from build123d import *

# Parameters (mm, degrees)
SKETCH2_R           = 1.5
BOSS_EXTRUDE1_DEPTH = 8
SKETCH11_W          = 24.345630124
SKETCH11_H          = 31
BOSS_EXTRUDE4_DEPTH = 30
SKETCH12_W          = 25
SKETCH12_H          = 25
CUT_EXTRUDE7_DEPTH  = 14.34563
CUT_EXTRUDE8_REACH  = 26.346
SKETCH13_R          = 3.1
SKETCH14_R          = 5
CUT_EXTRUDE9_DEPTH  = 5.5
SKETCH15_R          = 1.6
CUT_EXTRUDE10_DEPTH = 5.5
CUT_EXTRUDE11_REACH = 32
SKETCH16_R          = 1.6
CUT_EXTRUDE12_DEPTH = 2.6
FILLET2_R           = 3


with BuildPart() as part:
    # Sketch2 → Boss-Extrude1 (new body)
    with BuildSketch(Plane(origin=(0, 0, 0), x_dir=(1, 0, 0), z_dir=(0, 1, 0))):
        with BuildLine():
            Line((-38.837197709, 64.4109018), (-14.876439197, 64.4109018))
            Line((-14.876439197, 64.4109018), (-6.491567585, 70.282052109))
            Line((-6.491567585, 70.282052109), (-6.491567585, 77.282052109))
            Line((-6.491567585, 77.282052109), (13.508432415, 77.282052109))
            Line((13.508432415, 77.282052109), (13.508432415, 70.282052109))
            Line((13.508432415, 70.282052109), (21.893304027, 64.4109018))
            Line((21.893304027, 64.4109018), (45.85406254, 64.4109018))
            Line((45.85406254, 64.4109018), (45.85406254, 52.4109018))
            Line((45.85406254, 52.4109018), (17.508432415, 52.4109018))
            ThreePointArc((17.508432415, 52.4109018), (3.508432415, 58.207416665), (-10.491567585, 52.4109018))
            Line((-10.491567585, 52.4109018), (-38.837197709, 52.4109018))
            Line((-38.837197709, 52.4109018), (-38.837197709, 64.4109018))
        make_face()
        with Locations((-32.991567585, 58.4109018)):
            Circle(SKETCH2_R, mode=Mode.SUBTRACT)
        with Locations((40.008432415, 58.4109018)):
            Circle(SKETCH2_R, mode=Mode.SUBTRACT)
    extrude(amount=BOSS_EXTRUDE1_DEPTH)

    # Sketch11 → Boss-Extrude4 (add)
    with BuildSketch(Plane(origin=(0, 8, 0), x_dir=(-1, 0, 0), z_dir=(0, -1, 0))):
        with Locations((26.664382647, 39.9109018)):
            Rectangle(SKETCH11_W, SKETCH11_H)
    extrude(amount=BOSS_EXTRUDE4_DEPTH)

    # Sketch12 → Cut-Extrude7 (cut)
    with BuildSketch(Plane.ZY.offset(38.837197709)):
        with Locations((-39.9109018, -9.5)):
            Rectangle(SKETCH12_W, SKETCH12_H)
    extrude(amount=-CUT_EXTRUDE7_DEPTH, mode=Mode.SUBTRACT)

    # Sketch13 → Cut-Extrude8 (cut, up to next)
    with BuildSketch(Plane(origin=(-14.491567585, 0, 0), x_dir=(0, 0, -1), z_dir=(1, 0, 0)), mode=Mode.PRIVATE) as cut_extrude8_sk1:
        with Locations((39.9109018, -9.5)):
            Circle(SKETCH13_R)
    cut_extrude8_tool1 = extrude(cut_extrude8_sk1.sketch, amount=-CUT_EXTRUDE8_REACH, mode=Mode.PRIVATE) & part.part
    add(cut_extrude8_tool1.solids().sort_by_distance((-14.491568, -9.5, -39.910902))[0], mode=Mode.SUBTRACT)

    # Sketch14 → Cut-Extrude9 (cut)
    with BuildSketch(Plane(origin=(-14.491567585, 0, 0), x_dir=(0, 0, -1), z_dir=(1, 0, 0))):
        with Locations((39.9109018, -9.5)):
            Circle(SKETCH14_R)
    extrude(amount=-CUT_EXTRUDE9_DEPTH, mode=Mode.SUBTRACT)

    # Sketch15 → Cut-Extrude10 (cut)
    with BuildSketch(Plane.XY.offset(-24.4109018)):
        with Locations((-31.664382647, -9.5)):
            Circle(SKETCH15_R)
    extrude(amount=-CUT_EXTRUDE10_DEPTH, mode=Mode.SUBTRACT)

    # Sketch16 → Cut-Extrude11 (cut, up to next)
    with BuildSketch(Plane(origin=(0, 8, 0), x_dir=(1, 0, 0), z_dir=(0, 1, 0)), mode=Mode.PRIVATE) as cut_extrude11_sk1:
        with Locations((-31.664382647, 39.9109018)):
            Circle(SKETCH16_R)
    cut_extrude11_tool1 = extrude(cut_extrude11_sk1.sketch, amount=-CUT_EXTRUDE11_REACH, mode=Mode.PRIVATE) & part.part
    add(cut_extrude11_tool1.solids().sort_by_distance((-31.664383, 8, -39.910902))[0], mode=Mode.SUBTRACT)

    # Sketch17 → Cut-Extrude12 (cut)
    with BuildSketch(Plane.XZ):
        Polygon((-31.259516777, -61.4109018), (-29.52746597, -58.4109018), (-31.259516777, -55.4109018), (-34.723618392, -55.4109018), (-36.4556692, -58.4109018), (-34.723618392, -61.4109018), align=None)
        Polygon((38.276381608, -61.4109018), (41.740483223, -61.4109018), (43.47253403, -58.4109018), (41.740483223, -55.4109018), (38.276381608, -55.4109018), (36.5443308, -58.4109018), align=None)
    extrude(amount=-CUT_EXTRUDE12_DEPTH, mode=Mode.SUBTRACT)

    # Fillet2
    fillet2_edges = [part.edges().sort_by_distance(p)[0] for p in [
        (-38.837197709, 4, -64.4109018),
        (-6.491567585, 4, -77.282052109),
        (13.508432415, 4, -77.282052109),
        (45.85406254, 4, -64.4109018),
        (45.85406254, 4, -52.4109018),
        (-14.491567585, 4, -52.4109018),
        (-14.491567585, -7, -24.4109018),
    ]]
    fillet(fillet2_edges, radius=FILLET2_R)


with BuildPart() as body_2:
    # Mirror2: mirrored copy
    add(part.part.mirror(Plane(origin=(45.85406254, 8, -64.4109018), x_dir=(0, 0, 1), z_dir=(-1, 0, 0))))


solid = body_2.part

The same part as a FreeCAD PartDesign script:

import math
import FreeCAD as App
import Part
import Sketcher

V = App.Vector
Q = App.Units.Quantity


def edges_at(feature, points):
    """Names of the edges that pass closest to the given points."""
    edges = feature.Shape.Edges
    near = lambda p: min(range(len(edges)), key=lambda i: edges[i].distToShape(Part.Vertex(*p))[0])
    return sorted({f"Edge{near(p) + 1}" for p in points})

doc = App.newDocument("Part")
body = doc.addObject("PartDesign::Body", "Body")

# Sketch on XZ plane
sketch1 = body.newObject("Sketcher::SketchObject", "Sketch")
sketch1.AttachmentSupport = (doc.getObject("XZ_Plane"), [""])
sketch1.MapMode = "FlatFace"
sketch1.addGeometry(Part.LineSegment(V(-14.9, -64.4, 0), V(-38.8, -64.4, 0)), False)
sketch1.addGeometry(Part.LineSegment(V(-38.8, -64.4, 0), V(-38.8, -52.4, 0)), False)
sketch1.addGeometry(Part.LineSegment(V(-38.8, -52.4, 0), V(-10.5, -52.4, 0)), False)
sketch1.addGeometry(Part.ArcOfCircle(Part.Circle(V(3.5, -38.4, 0), V(0, 0, 1), 19.8), math.radians(-135), math.radians(-45)), False)
sketch1.addGeometry(Part.LineSegment(V(17.5, -52.4, 0), V(45.9, -52.4, 0)), False)
sketch1.addGeometry(Part.LineSegment(V(45.9, -52.4, 0), V(45.9, -64.4, 0)), False)
sketch1.addGeometry(Part.LineSegment(V(45.9, -64.4, 0), V(21.9, -64.4, 0)), False)
sketch1.addGeometry(Part.LineSegment(V(21.9, -64.4, 0), V(13.5, -70.3, 0)), False)
sketch1.addGeometry(Part.LineSegment(V(13.5, -70.3, 0), V(13.5, -77.3, 0)), False)
sketch1.addGeometry(Part.LineSegment(V(13.5, -77.3, 0), V(-6.5, -77.3, 0)), False)
sketch1.addGeometry(Part.LineSegment(V(-6.5, -77.3, 0), V(-6.5, -70.3, 0)), False)
sketch1.addGeometry(Part.LineSegment(V(-6.5, -70.3, 0), V(-14.9, -64.4, 0)), False)
sketch1.addGeometry(Part.Circle(V(40, -58.4, 0), V(0, 0, 1), 1.5), False)
sketch1.addGeometry(Part.Circle(V(-33, -58.4, 0), V(0, 0, 1), 1.5), False)
sketch1.addConstraint(Sketcher.Constraint("Coincident", 0, 2, 1, 1))
sketch1.addConstraint(Sketcher.Constraint("Coincident", 1, 2, 2, 1))
sketch1.addConstraint(Sketcher.Constraint("Coincident", 2, 2, 3, 1))
sketch1.addConstraint(Sketcher.Constraint("Coincident", 3, 2, 4, 1))
sketch1.addConstraint(Sketcher.Constraint("Coincident", 4, 2, 5, 1))
sketch1.addConstraint(Sketcher.Constraint("Coincident", 5, 2, 6, 1))
sketch1.addConstraint(Sketcher.Constraint("Coincident", 6, 2, 7, 1))
sketch1.addConstraint(Sketcher.Constraint("Coincident", 7, 2, 8, 1))
sketch1.addConstraint(Sketcher.Constraint("Coincident", 8, 2, 9, 1))
sketch1.addConstraint(Sketcher.Constraint("Coincident", 9, 2, 10, 1))
sketch1.addConstraint(Sketcher.Constraint("Coincident", 10, 2, 11, 1))
sketch1.addConstraint(Sketcher.Constraint("Coincident", 11, 2, 0, 1))
sketch1.addConstraint(Sketcher.Constraint("Horizontal", 0))
sketch1.addConstraint(Sketcher.Constraint("Vertical", 1))
sketch1.addConstraint(Sketcher.Constraint("Horizontal", 2))
sketch1.addConstraint(Sketcher.Constraint("Horizontal", 4))
sketch1.addConstraint(Sketcher.Constraint("Vertical", 5))
sketch1.addConstraint(Sketcher.Constraint("Horizontal", 6))
sketch1.addConstraint(Sketcher.Constraint("Vertical", 8))
sketch1.addConstraint(Sketcher.Constraint("Horizontal", 9))
sketch1.addConstraint(Sketcher.Constraint("Vertical", 10))
sketch1.addConstraint(Sketcher.Constraint("Equal", 12, 13))
sketch1.addConstraint(Sketcher.Constraint("Horizontal", 12, 3, 13, 3))
sketch1.addConstraint(Sketcher.Constraint("Horizontal", 2, 2, 3, 2))
sketch1.addConstraint(Sketcher.Constraint("Horizontal", 0, 2, 5, 2))
sketch1.addConstraint(Sketcher.Constraint("Horizontal", 7, 2, 10, 2))
sketch1.addConstraint(Sketcher.Constraint("Equal", 2, 4))
sketch1.addConstraint(Sketcher.Constraint("Equal", 0, 6))
sketch1.addConstraint(Sketcher.Constraint("Equal", 7, 11))
sketch1.addConstraint(Sketcher.Constraint("Diameter", 12, Q("3 mm")))
sketch1.addConstraint(Sketcher.Constraint("DistanceX", 9, 2, 9, 1, Q("20 mm")))
sketch1.addConstraint(Sketcher.Constraint("DistanceY", 1, 1, 1, 2, Q("12 mm")))
sketch1.addConstraint(Sketcher.Constraint("DistanceY", 8, 2, 8, 1, Q("7 mm")))
sketch1.addConstraint(Sketcher.Constraint("Angle", 7, Q("-145 deg")))
sketch1.addConstraint(Sketcher.Constraint("DistanceX", 13, 3, 12, 3, Q("73 mm")))
sketch1.addConstraint(Sketcher.Constraint("DistanceY", 0, 2, 13, 3, Q("6 mm")))
sketch1.addConstraint(Sketcher.Constraint("DistanceX", 2, 2, 3, 3, Q("14 mm")))
sketch1.addConstraint(Sketcher.Constraint("DistanceX", 3, 3, 12, 3, Q("36.5 mm")))
sketch1.addConstraint(Sketcher.Constraint("Radius", 3, Q("19.804968 mm")))
sketch1.addConstraint(Sketcher.Constraint("DistanceX", 0, 2, 0, 1, Q("23.960759 mm")))
sketch1.addConstraint(Sketcher.Constraint("DistanceX", 2, 1, 2, 2, Q("28.34563 mm")))
sketch1.addConstraint(Sketcher.Constraint("DistanceY", 12, 3, -1, 1, Q("58.410902 mm")))
sketch1.addConstraint(Sketcher.Constraint("DistanceX", 11, 2, -1, 1, Q("14.876439 mm")))
pad1 = body.newObject("PartDesign::Pad", "Pad")
pad1.Profile = sketch1
pad1.Length = 8
pad1.Reversed = True

# Sketch on XZ plane
sketch2 = body.newObject("Sketcher::SketchObject", "Sketch001")
sketch2.AttachmentSupport = (doc.getObject("XZ_Plane"), [""])
sketch2.MapMode = "FlatFace"
sketch2.AttachmentOffset = App.Placement(V(0, 0, -8), App.Rotation())
sketch2.addGeometry(Part.LineSegment(V(-14, -55, 0), V(-14, -24, 0)), False)
sketch2.addGeometry(Part.LineSegment(V(-14, -24, 0), V(-39, -24, 0)), False)
sketch2.addGeometry(Part.LineSegment(V(-39, -24, 0), V(-39, -55, 0)), False)
sketch2.addGeometry(Part.LineSegment(V(-39, -55, 0), V(-14, -55, 0)), False)
sketch2.addConstraint(Sketcher.Constraint("Coincident", 0, 2, 1, 1))
sketch2.addConstraint(Sketcher.Constraint("Coincident", 1, 2, 2, 1))
sketch2.addConstraint(Sketcher.Constraint("Coincident", 2, 2, 3, 1))
sketch2.addConstraint(Sketcher.Constraint("Coincident", 3, 2, 0, 1))
sketch2.addConstraint(Sketcher.Constraint("Vertical", 0))
sketch2.addConstraint(Sketcher.Constraint("Horizontal", 1))
sketch2.addConstraint(Sketcher.Constraint("Vertical", 2))
sketch2.addConstraint(Sketcher.Constraint("Horizontal", 3))
sketch2.addConstraint(Sketcher.Constraint("DistanceY", 0, 1, 0, 2, Q("31 mm")))
sketch2.addConstraint(Sketcher.Constraint("DistanceX", 1, 2, 1, 1, Q("24.34563 mm")))
sketch2.addConstraint(Sketcher.Constraint("DistanceY", 0, 2, -1, 1, Q("24.410902 mm")))
sketch2.addConstraint(Sketcher.Constraint("DistanceX", 0, 2, -1, 1, Q("14.491568 mm")))
pad2 = body.newObject("PartDesign::Pad", "Pad001")
pad2.Profile = sketch2
pad2.Length = 30

# Sketch on YZ plane
sketch3 = body.newObject("Sketcher::SketchObject", "Sketch002")
sketch3.AttachmentSupport = (doc.getObject("YZ_Plane"), [""])
sketch3.MapMode = "FlatFace"
sketch3.AttachmentOffset = App.Placement(V(0, 0, -38.837198), App.Rotation())
sketch3.addGeometry(Part.LineSegment(V(3, -52, 0), V(-22, -52, 0)), False)
sketch3.addGeometry(Part.LineSegment(V(-22, -52, 0), V(-22, -27, 0)), False)
sketch3.addGeometry(Part.LineSegment(V(-22, -27, 0), V(3, -27, 0)), False)
sketch3.addGeometry(Part.LineSegment(V(3, -27, 0), V(3, -52, 0)), False)
sketch3.addConstraint(Sketcher.Constraint("Coincident", 0, 2, 1, 1))
sketch3.addConstraint(Sketcher.Constraint("Coincident", 1, 2, 2, 1))
sketch3.addConstraint(Sketcher.Constraint("Coincident", 2, 2, 3, 1))
sketch3.addConstraint(Sketcher.Constraint("Coincident", 3, 2, 0, 1))
sketch3.addConstraint(Sketcher.Constraint("Horizontal", 0))
sketch3.addConstraint(Sketcher.Constraint("Vertical", 1))
sketch3.addConstraint(Sketcher.Constraint("Horizontal", 2))
sketch3.addConstraint(Sketcher.Constraint("Vertical", 3))
sketch3.addConstraint(Sketcher.Constraint("Equal", 2, 1))
sketch3.addConstraint(Sketcher.Constraint("DistanceX", 0, 2, 0, 1, Q("25 mm")))
sketch3.addConstraint(Sketcher.Constraint("DistanceX", 0, 2, -1, 1, Q("22 mm")))
sketch3.addConstraint(Sketcher.Constraint("DistanceY", 0, 2, -1, 1, Q("52.410902 mm")))
pocket1 = body.newObject("PartDesign::Pocket", "Pocket")
pocket1.Profile = sketch3
pocket1.Length = 14.34563
pocket1.Reversed = True

# Sketch on YZ plane
sketch4 = body.newObject("Sketcher::SketchObject", "Sketch003")
sketch4.AttachmentSupport = (doc.getObject("YZ_Plane"), [""])
sketch4.MapMode = "FlatFace"
sketch4.AttachmentOffset = App.Placement(V(0, 0, -14.491568), App.Rotation())
sketch4.addGeometry(Part.Circle(V(-9.5, -39.9, 0), V(0, 0, 1), 3.1), False)
sketch4.addConstraint(Sketcher.Constraint("Diameter", 0, Q("6.2 mm")))
sketch4.addConstraint(Sketcher.Constraint("DistanceX", 0, 3, -1, 1, Q("9.5 mm")))
sketch4.addConstraint(Sketcher.Constraint("DistanceY", 0, 3, -1, 1, Q("39.910902 mm")))
pocket2 = body.newObject("PartDesign::Pocket", "Pocket001")
pocket2.Profile = sketch4
pocket2.Type = "UpToFirst"

# Sketch on YZ plane
sketch5 = body.newObject("Sketcher::SketchObject", "Sketch004")
sketch5.AttachmentSupport = (doc.getObject("YZ_Plane"), [""])
sketch5.MapMode = "FlatFace"
sketch5.AttachmentOffset = App.Placement(V(0, 0, -14.491568), App.Rotation())
sketch5.addGeometry(Part.Circle(V(-10, -40, 0), V(0, 0, 1), 5), False)
sketch5.addConstraint(Sketcher.Constraint("Diameter", 0, Q("10 mm")))
sketch5.addConstraint(Sketcher.Constraint("DistanceX", 0, 3, -1, 1, Q("9.5 mm")))
sketch5.addConstraint(Sketcher.Constraint("DistanceY", 0, 3, -1, 1, Q("39.910902 mm")))
pocket3 = body.newObject("PartDesign::Pocket", "Pocket002")
pocket3.Profile = sketch5
pocket3.Length = 5.5

# Sketch on XY plane
sketch6 = body.newObject("Sketcher::SketchObject", "Sketch005")
sketch6.AttachmentSupport = (doc.getObject("XY_Plane"), [""])
sketch6.MapMode = "FlatFace"
sketch6.AttachmentOffset = App.Placement(V(0, 0, -24.410902), App.Rotation())
sketch6.addGeometry(Part.Circle(V(-31.7, -9.5, 0), V(0, 0, 1), 1.6), False)
sketch6.addConstraint(Sketcher.Constraint("Diameter", 0, Q("3.2 mm")))
sketch6.addConstraint(Sketcher.Constraint("DistanceY", 0, 3, -1, 1, Q("9.5 mm")))
sketch6.addConstraint(Sketcher.Constraint("DistanceX", 0, 3, -1, 1, Q("31.664383 mm")))
pocket4 = body.newObject("PartDesign::Pocket", "Pocket003")
pocket4.Profile = sketch6
pocket4.Length = 5.5

# Sketch on XZ plane
sketch7 = body.newObject("Sketcher::SketchObject", "Sketch006")
sketch7.AttachmentSupport = (doc.getObject("XZ_Plane"), [""])
sketch7.MapMode = "FlatFace"
sketch7.AttachmentOffset = App.Placement(V(0, 0, -8), App.Rotation())
sketch7.addGeometry(Part.Circle(V(-31.7, -39.9, 0), V(0, 0, 1), 1.6), False)
sketch7.addConstraint(Sketcher.Constraint("Diameter", 0, Q("3.2 mm")))
sketch7.addConstraint(Sketcher.Constraint("DistanceY", 0, 3, -1, 1, Q("39.910902 mm")))
sketch7.addConstraint(Sketcher.Constraint("DistanceX", 0, 3, -1, 1, Q("31.664383 mm")))
pocket5 = body.newObject("PartDesign::Pocket", "Pocket004")
pocket5.Profile = sketch7
pocket5.Type = "UpToFirst"
pocket5.Reversed = True

# Sketch on XZ plane
sketch8 = body.newObject("Sketcher::SketchObject", "Sketch007")
sketch8.AttachmentSupport = (doc.getObject("XZ_Plane"), [""])
sketch8.MapMode = "FlatFace"
sketch8.addGeometry(Part.LineSegment(V(-31.3, -61.4, 0), V(-29.5, -58.4, 0)), False)
sketch8.addGeometry(Part.LineSegment(V(-29.5, -58.4, 0), V(-31.3, -55.4, 0)), False)
sketch8.addGeometry(Part.LineSegment(V(-31.3, -55.4, 0), V(-34.7, -55.4, 0)), False)
sketch8.addGeometry(Part.LineSegment(V(-34.7, -55.4, 0), V(-36.5, -58.4, 0)), False)
sketch8.addGeometry(Part.LineSegment(V(-36.5, -58.4, 0), V(-34.7, -61.4, 0)), False)
sketch8.addGeometry(Part.LineSegment(V(-34.7, -61.4, 0), V(-31.3, -61.4, 0)), False)
sketch8.addGeometry(Part.LineSegment(V(38.3, -61.4, 0), V(41.7, -61.4, 0)), False)
sketch8.addGeometry(Part.LineSegment(V(41.7, -61.4, 0), V(43.5, -58.4, 0)), False)
sketch8.addGeometry(Part.LineSegment(V(43.5, -58.4, 0), V(41.7, -55.4, 0)), False)
sketch8.addGeometry(Part.LineSegment(V(41.7, -55.4, 0), V(38.3, -55.4, 0)), False)
sketch8.addGeometry(Part.LineSegment(V(38.3, -55.4, 0), V(36.5, -58.4, 0)), False)
sketch8.addGeometry(Part.LineSegment(V(36.5, -58.4, 0), V(38.3, -61.4, 0)), False)
sketch8.addConstraint(Sketcher.Constraint("Coincident", 0, 2, 1, 1))
sketch8.addConstraint(Sketcher.Constraint("Coincident", 1, 2, 2, 1))
sketch8.addConstraint(Sketcher.Constraint("Coincident", 2, 2, 3, 1))
sketch8.addConstraint(Sketcher.Constraint("Coincident", 3, 2, 4, 1))
sketch8.addConstraint(Sketcher.Constraint("Coincident", 4, 2, 5, 1))
sketch8.addConstraint(Sketcher.Constraint("Coincident", 5, 2, 0, 1))
sketch8.addConstraint(Sketcher.Constraint("Coincident", 6, 2, 7, 1))
sketch8.addConstraint(Sketcher.Constraint("Coincident", 7, 2, 8, 1))
sketch8.addConstraint(Sketcher.Constraint("Coincident", 8, 2, 9, 1))
sketch8.addConstraint(Sketcher.Constraint("Coincident", 9, 2, 10, 1))
sketch8.addConstraint(Sketcher.Constraint("Coincident", 10, 2, 11, 1))
sketch8.addConstraint(Sketcher.Constraint("Coincident", 11, 2, 6, 1))
sketch8.addConstraint(Sketcher.Constraint("Horizontal", 2))
sketch8.addConstraint(Sketcher.Constraint("Horizontal", 5))
sketch8.addConstraint(Sketcher.Constraint("Horizontal", 6))
sketch8.addConstraint(Sketcher.Constraint("Horizontal", 9))
sketch8.addConstraint(Sketcher.Constraint("Parallel", 0, 3))
sketch8.addConstraint(Sketcher.Constraint("Parallel", 1, 4))
sketch8.addConstraint(Sketcher.Constraint("Parallel", 3, 7))
sketch8.addConstraint(Sketcher.Constraint("Parallel", 4, 8))
sketch8.addConstraint(Sketcher.Constraint("Parallel", 7, 10))
sketch8.addConstraint(Sketcher.Constraint("Parallel", 8, 11))
sketch8.addConstraint(Sketcher.Constraint("Horizontal", 0, 2, 3, 2))
sketch8.addConstraint(Sketcher.Constraint("Horizontal", 5, 2, 6, 2))
sketch8.addConstraint(Sketcher.Constraint("Horizontal", 3, 2, 7, 2))
sketch8.addConstraint(Sketcher.Constraint("Horizontal", 2, 2, 8, 2))
sketch8.addConstraint(Sketcher.Constraint("Horizontal", 7, 2, 10, 2))
sketch8.addConstraint(Sketcher.Constraint("Vertical", 2, 2, 4, 2))
sketch8.addConstraint(Sketcher.Constraint("Vertical", 1, 2, 5, 2))
sketch8.addConstraint(Sketcher.Constraint("Equal", 5, 6))
sketch8.addConstraint(Sketcher.Constraint("Angle", 0, Q("60 deg")))
sketch8.addConstraint(Sketcher.Constraint("DistanceY", 0, 2, 1, 2, Q("3 mm")))
sketch8.addConstraint(Sketcher.Constraint("DistanceX", 5, 2, 6, 2, Q("73 mm")))
sketch8.addConstraint(Sketcher.Constraint("DistanceX", 2, 2, 2, 1, Q("3.464102 mm")))
sketch8.addConstraint(Sketcher.Constraint("DistanceY", 0, 2, -1, 1, Q("58.410902 mm")))
sketch8.addConstraint(Sketcher.Constraint("DistanceX", 2, 2, -1, 1, Q("34.723618 mm")))
pocket6 = body.newObject("PartDesign::Pocket", "Pocket005")
pocket6.Profile = sketch8
pocket6.Length = 2.6
doc.recompute()

fillet = body.newObject("PartDesign::Fillet", "Fillet")
fillet.Base = (pocket6, edges_at(pocket6, [
    (-38.837, 4, -64.411),
    (-6.492, 4, -77.282),
    (13.508, 4, -77.282),
    (45.854, 4, -64.411),
    (45.854, 4, -52.411),
    (-14.492, 4, -52.411),
    (-14.492, -7, -24.411),
]))
fillet.Radius = 3
body2 = doc.addObject("PartDesign::Body", "Body001")
doc.recompute()

mirroring = doc.addObject("Part::Mirroring", "Mirroring")
mirroring.Source = body
mirroring.Base = V(45.854063, 8, -64.410902)
mirroring.Normal = V(-1, 0, 0)
body2.BaseFeature = mirroring
doc.recompute()
body.Visibility = False
mirroring.Visibility = False

doc.recompute()
